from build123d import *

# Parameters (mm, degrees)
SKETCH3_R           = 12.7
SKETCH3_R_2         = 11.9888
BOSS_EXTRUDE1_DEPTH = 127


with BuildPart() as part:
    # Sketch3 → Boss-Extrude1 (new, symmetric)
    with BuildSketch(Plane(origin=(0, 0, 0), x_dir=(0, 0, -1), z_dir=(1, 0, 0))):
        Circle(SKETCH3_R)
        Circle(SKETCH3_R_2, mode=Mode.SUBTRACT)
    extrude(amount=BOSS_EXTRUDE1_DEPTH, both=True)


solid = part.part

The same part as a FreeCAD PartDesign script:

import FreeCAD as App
import Part
import Sketcher
Q = App.Units.Quantity

doc = App.newDocument("Part")
body = doc.addObject("PartDesign::Body", "Body")

sketch1 = body.newObject("Sketcher::SketchObject", "Sketch")
sketch1.AttachmentSupport = (doc.getObject("YZ_Plane"), [""])
sketch1.MapMode = "FlatFace"
sketch1.addGeometry(Part.Circle(App.Vector(0, 0, 0), App.Vector(0, 0, 1), 12.7), False)
sketch1.addGeometry(Part.Circle(App.Vector(0, 0, 0), App.Vector(0, 0, 1), 11.9888), False)
sketch1.addConstraint(Sketcher.Constraint("Coincident", 0, 3, -1, 1))
sketch1.addConstraint(Sketcher.Constraint("Coincident", 1, 3, -1, 1))
sketch1.addConstraint(Sketcher.Constraint("Diameter", 0, Q("1 in")))
sketch1.addConstraint(Sketcher.Constraint("Diameter", 1, Q("0.944 in")))
pad1 = body.newObject("PartDesign::Pad", "Pad")
pad1.Profile = sketch1
pad1.Length = Q("10 in")
pad1.Midplane = True

doc.recompute()
